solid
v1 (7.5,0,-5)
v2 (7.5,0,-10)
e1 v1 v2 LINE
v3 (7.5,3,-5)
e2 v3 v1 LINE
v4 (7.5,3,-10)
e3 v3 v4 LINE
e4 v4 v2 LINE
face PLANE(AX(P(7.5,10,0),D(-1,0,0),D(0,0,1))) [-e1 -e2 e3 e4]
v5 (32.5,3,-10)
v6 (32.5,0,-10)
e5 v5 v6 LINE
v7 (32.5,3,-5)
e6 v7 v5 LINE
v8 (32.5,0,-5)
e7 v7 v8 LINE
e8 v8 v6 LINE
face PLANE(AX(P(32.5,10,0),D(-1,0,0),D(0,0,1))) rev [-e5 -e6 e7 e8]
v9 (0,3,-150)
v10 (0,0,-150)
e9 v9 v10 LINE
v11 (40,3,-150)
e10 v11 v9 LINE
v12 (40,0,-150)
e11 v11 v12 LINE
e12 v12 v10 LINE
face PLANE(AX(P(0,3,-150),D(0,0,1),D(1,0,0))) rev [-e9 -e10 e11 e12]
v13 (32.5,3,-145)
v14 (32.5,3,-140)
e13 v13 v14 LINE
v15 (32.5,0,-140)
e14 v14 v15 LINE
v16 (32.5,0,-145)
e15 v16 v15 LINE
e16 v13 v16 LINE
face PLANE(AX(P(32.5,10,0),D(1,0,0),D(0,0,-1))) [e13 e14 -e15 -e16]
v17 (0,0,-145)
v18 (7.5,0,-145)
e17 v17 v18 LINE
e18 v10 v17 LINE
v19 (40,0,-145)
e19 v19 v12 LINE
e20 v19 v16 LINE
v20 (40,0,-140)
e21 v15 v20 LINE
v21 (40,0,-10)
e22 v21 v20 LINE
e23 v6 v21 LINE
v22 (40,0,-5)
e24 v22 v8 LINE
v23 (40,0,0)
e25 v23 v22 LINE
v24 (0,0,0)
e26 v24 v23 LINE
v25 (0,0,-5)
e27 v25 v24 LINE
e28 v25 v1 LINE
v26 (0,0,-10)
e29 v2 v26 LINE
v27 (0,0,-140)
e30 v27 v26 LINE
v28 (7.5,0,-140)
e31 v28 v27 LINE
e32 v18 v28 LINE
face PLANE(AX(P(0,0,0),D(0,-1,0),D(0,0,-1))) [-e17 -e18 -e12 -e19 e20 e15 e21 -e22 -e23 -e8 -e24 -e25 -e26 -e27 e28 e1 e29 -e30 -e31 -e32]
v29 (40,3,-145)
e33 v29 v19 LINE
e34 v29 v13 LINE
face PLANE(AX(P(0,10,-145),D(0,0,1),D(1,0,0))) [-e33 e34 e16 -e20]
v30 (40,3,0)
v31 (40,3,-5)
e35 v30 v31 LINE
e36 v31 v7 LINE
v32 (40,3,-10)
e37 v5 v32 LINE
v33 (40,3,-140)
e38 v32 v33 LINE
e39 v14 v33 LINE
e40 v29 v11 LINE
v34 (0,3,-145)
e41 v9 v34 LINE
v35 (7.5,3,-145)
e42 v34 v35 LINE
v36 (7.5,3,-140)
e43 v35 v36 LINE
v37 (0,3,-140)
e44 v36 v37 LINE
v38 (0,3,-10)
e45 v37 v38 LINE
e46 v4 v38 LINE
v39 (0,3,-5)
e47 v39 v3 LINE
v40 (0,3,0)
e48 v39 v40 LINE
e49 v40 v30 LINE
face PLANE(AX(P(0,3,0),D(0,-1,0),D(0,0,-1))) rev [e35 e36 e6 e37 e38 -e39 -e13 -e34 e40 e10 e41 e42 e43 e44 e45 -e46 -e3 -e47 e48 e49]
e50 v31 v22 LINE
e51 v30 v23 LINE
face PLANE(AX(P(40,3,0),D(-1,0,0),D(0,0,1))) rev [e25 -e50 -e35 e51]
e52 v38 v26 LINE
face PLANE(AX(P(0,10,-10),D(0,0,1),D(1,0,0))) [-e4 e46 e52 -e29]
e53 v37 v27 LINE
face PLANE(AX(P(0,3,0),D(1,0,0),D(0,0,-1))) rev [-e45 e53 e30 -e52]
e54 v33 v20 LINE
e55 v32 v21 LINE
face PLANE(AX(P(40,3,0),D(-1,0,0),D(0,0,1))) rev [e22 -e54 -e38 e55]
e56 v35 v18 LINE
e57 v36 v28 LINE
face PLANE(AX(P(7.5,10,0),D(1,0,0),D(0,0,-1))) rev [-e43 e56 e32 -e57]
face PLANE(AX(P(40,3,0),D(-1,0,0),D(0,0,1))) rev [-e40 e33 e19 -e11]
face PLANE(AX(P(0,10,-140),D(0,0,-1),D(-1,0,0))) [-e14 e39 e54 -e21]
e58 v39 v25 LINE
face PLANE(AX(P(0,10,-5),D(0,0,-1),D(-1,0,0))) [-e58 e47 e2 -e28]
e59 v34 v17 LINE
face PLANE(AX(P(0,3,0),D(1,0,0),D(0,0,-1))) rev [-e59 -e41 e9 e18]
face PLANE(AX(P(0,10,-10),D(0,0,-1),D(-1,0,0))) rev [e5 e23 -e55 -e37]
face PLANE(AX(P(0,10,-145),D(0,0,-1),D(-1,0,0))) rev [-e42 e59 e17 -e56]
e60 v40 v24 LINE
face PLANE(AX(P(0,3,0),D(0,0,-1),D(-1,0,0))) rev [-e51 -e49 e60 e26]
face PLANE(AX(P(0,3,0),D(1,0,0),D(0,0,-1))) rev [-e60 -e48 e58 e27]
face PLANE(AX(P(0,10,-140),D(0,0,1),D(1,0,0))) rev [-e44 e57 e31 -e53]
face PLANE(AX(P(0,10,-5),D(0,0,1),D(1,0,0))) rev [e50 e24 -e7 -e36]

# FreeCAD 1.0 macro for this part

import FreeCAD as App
import Part
import Sketcher
from FreeCAD import Vector

doc = App.newDocument("Part")
params = doc.addObject("Spreadsheet::Sheet", "Params")
for row, (alias, value) in enumerate([
    ("sketch1_width", "40 mm"),
    ("sketch1_height", "150 mm"),
    ("pad1_length", "3 mm"),
    ("sketch2_height", "5 mm"),
    ("sketch2_width", "7.5 mm"),
    ("pocket1_length", "10 mm"),
], start=1):
    params.set(f"A{row}", alias)
    params.set(f"B{row}", "=" + value)
    params.setAlias(f"B{row}", alias)

body = doc.addObject("PartDesign::Body", "Body")

# Sketch on XZ plane
sketch1 = body.newObject("Sketcher::SketchObject", "Sketch")
sketch1.AttachmentSupport = (doc.getObject("XZ_Plane"), [""])
sketch1.MapMode = "FlatFace"
sketch1.addGeometry(Part.LineSegment(Vector(0, -150, 0), Vector(0, 0, 0)), False)
sketch1.addGeometry(Part.LineSegment(Vector(0, 0, 0), Vector(40, 0, 0)), False)
sketch1.addGeometry(Part.LineSegment(Vector(40, 0, 0), Vector(40, -150, 0)), False)
sketch1.addGeometry(Part.LineSegment(Vector(40, -150, 0), Vector(0, -150, 0)), False)
sketch1.addConstraint(Sketcher.Constraint("Coincident", 0, 2, 1, 1))
sketch1.addConstraint(Sketcher.Constraint("Coincident", 1, 2, 2, 1))
sketch1.addConstraint(Sketcher.Constraint("Coincident", 2, 2, 3, 1))
sketch1.addConstraint(Sketcher.Constraint("Coincident", 3, 2, 0, 1))
sketch1.addConstraint(Sketcher.Constraint("Vertical", 0))
sketch1.addConstraint(Sketcher.Constraint("Horizontal", 1))
sketch1.addConstraint(Sketcher.Constraint("Vertical", 2))
sketch1.addConstraint(Sketcher.Constraint("Horizontal", 3))
sketch1.addConstraint(Sketcher.Constraint("Coincident", 0, 2, -1, 1))
sketch1.addConstraint(Sketcher.Constraint("DistanceX", 1, 1, 1, 2, 40.0))
sketch1.addConstraint(Sketcher.Constraint("DistanceY", 0, 1, 0, 2, 150.0))
sketch1.setExpression("Constraints[9]", "Params.sketch1_width")
sketch1.setExpression("Constraints[10]", "Params.sketch1_height")
pad1 = body.newObject("PartDesign::Pad", "Pad")
pad1.Profile = sketch1
pad1.setExpression("Length", "Params.pad1_length")
pad1.Reversed = True

# Sketch on XZ plane
sketch2 = body.newObject("Sketcher::SketchObject", "Sketch001")
sketch2.AttachmentSupport = (doc.getObject("XZ_Plane"), [""])
sketch2.MapMode = "FlatFace"
sketch2.addGeometry(Part.LineSegment(Vector(0, -145, 0), Vector(0, -140, 0)), False)
sketch2.addGeometry(Part.LineSegment(Vector(0, -140, 0), Vector(8, -140, 0)), False)
sketch2.addGeometry(Part.LineSegment(Vector(8, -140, 0), Vector(8, -145, 0)), False)
sketch2.addGeometry(Part.LineSegment(Vector(8, -145, 0), Vector(0, -145, 0)), False)
sketch2.addGeometry(Part.LineSegment(Vector(32, -10, 0), Vector(32, -5, 0)), False)
sketch2.addGeometry(Part.LineSegment(Vector(32, -5, 0), Vector(40, -5, 0)), False)
sketch2.addGeometry(Part.LineSegment(Vector(40, -5, 0), Vector(40, -10, 0)), False)
sketch2.addGeometry(Part.LineSegment(Vector(40, -10, 0), Vector(32, -10, 0)), False)
sketch2.addGeometry(Part.LineSegment(Vector(0, -10, 0), Vector(0, -5, 0)), False)
sketch2.addGeometry(Part.LineSegment(Vector(0, -5, 0), Vector(8, -5, 0)), False)
sketch2.addGeometry(Part.LineSegment(Vector(8, -5, 0), Vector(8, -10, 0)), False)
sketch2.addGeometry(Part.LineSegment(Vector(8, -10, 0), Vector(0, -10, 0)), False)
sketch2.addGeometry(Part.LineSegment(Vector(32, -145, 0), Vector(32, -140, 0)), False)
sketch2.addGeometry(Part.LineSegment(Vector(32, -140, 0), Vector(40, -140, 0)), False)
sketch2.addGeometry(Part.LineSegment(Vector(40, -140, 0), Vector(40, -145, 0)), False)
sketch2.addGeometry(Part.LineSegment(Vector(40, -145, 0), Vector(32, -145, 0)), False)
sketch2.addConstraint(Sketcher.Constraint("Coincident", 0, 2, 1, 1))
sketch2.addConstraint(Sketcher.Constraint("Coincident", 1, 2, 2, 1))
sketch2.addConstraint(Sketcher.Constraint("Coincident", 2, 2, 3, 1))
sketch2.addConstraint(Sketcher.Constraint("Coincident", 3, 2, 0, 1))
sketch2.addConstraint(Sketcher.Constraint("Coincident", 4, 2, 5, 1))
sketch2.addConstraint(Sketcher.Constraint("Coincident", 5, 2, 6, 1))
sketch2.addConstraint(Sketcher.Constraint("Coincident", 6, 2, 7, 1))
sketch2.addConstraint(Sketcher.Constraint("Coincident", 7, 2, 4, 1))
sketch2.addConstraint(Sketcher.Constraint("Coincident", 8, 2, 9, 1))
sketch2.addConstraint(Sketcher.Constraint("Coincident", 9, 2, 10, 1))
sketch2.addConstraint(Sketcher.Constraint("Coincident", 10, 2, 11, 1))
sketch2.addConstraint(Sketcher.Constraint("Coincident", 11, 2, 8, 1))
sketch2.addConstraint(Sketcher.Constraint("Coincident", 12, 2, 13, 1))
sketch2.addConstraint(Sketcher.Constraint("Coincident", 13, 2, 14, 1))
sketch2.addConstraint(Sketcher.Constraint("Coincident", 14, 2, 15, 1))
sketch2.addConstraint(Sketcher.Constraint("Coincident", 15, 2, 12, 1))
sketch2.addConstraint(Sketcher.Constraint("Vertical", 0))
sketch2.addConstraint(Sketcher.Constraint("Horizontal", 1))
sketch2.addConstraint(Sketcher.Constraint("Vertical", 2))
sketch2.addConstraint(Sketcher.Constraint("Horizontal", 3))
sketch2.addConstraint(Sketcher.Constraint("Vertical", 4))
sketch2.addConstraint(Sketcher.Constraint("Horizontal", 5))
sketch2.addConstraint(Sketcher.Constraint("Vertical", 6))
sketch2.addConstraint(Sketcher.Constraint("Horizontal", 7))
sketch2.addConstraint(Sketcher.Constraint("Vertical", 8))
sketch2.addConstraint(Sketcher.Constraint("Horizontal", 9))
sketch2.addConstraint(Sketcher.Constraint("Vertical", 10))
sketch2.addConstraint(Sketcher.Constraint("Horizontal", 11))
sketch2.addConstraint(Sketcher.Constraint("Vertical", 12))
sketch2.addConstraint(Sketcher.Constraint("Horizontal", 13))
sketch2.addConstraint(Sketcher.Constraint("Vertical", 14))
sketch2.addConstraint(Sketcher.Constraint("Horizontal", 15))
sketch2.addConstraint(Sketcher.Constraint("PointOnObject", 0, 2, -2))
sketch2.addConstraint(Sketcher.Constraint("PointOnObject", 8, 2, -2))
sketch2.addConstraint(Sketcher.Constraint("Horizontal", 5, 2, 8, 2))
sketch2.addConstraint(Sketcher.Constraint("Horizontal", 7, 2, 10, 2))
sketch2.addConstraint(Sketcher.Constraint("Horizontal", 1, 2, 12, 2))
sketch2.addConstraint(Sketcher.Constraint("Horizontal", 3, 2, 14, 2))
sketch2.addConstraint(Sketcher.Constraint("Vertical", 2, 2, 9, 2))
sketch2.addConstraint(Sketcher.Constraint("Vertical", 7, 2, 12, 2))
sketch2.addConstraint(Sketcher.Constraint("Vertical", 6, 2, 13, 2))
sketch2.addConstraint(Sketcher.Constraint("Equal", 3, 5))
sketch2.addConstraint(Sketcher.Constraint("Equal", 2, 4))
sketch2.addConstraint(Sketcher.Constraint("DistanceY", 0, 1, 0, 2, 5.0))
sketch2.addConstraint(Sketcher.Constraint("DistanceX", 1, 1, 1, 2, 7.5))
sketch2.addConstraint(Sketcher.Constraint("DistanceY", 0, 2, -1, 1, 140.0))
sketch2.addConstraint(Sketcher.Constraint("DistanceY", 4, 2, -1, 1, 5.0))
sketch2.addConstraint(Sketcher.Constraint("DistanceX", -1, 1, 5, 2, 40.0))
sketch2.setExpression("Constraints[43]", "Params.sketch2_height")
sketch2.setExpression("Constraints[44]", "Params.sketch2_width")
pocket1 = body.newObject("PartDesign::Pocket", "Pocket")
pocket1.Profile = sketch2
pocket1.setExpression("Length", "Params.pocket1_length")

doc.recompute()
